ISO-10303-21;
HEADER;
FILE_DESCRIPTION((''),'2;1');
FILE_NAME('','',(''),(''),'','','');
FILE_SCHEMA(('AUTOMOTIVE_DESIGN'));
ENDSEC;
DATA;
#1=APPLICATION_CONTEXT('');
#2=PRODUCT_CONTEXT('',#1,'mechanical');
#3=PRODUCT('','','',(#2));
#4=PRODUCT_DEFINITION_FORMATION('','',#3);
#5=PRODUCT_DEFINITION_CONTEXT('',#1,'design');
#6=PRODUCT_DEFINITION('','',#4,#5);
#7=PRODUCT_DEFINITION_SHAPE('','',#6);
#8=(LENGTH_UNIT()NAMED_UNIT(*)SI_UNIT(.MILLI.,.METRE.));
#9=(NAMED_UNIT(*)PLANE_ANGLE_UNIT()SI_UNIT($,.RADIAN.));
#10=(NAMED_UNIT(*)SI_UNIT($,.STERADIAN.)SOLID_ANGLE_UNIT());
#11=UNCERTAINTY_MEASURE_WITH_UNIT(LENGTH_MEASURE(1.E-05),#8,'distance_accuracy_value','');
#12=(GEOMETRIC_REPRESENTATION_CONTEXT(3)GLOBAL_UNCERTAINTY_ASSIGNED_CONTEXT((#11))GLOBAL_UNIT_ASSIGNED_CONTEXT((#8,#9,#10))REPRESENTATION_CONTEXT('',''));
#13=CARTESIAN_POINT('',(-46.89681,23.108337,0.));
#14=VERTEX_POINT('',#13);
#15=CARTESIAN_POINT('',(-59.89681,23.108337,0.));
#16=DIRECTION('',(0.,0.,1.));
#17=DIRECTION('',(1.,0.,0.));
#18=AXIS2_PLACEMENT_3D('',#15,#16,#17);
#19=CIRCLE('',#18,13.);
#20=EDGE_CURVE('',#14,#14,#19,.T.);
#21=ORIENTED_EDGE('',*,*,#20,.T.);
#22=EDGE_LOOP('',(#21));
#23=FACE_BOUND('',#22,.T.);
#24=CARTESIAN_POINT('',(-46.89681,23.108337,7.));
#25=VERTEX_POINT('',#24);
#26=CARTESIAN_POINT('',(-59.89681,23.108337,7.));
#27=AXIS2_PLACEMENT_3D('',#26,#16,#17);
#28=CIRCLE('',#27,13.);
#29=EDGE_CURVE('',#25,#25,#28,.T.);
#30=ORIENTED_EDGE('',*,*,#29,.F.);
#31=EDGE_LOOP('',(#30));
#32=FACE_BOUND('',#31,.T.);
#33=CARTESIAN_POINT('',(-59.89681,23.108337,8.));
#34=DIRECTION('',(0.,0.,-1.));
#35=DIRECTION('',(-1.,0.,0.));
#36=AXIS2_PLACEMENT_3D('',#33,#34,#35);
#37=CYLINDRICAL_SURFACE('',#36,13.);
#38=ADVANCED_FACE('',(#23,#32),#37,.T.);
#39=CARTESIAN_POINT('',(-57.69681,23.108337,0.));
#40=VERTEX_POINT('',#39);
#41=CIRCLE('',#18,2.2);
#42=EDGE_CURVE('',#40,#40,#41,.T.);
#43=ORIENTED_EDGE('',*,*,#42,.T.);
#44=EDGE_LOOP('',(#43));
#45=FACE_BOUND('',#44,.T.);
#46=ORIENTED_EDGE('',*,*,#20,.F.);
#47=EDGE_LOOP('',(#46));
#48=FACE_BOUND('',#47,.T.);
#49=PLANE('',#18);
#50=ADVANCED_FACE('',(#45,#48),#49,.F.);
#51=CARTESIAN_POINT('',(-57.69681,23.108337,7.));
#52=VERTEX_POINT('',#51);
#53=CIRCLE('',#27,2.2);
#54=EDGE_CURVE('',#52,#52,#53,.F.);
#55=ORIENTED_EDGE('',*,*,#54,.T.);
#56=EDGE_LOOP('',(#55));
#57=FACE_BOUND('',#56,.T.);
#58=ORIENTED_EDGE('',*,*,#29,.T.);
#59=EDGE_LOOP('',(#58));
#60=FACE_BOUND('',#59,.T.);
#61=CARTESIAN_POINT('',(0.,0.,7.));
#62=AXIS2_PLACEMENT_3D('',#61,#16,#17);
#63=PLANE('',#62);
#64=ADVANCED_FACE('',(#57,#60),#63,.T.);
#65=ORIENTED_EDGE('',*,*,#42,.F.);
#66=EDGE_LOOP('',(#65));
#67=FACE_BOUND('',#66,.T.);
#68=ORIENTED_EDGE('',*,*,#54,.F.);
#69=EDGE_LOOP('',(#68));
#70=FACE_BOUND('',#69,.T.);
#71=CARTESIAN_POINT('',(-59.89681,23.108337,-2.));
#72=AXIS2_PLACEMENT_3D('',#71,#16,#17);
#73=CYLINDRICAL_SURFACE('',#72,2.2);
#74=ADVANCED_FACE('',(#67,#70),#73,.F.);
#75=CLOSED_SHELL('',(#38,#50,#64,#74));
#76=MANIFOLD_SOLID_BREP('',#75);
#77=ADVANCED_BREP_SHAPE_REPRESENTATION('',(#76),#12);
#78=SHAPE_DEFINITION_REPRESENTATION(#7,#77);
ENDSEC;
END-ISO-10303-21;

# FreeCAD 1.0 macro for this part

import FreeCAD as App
import Part
import Sketcher
Q = App.Units.Quantity

doc = App.newDocument("Part")
body = doc.addObject("PartDesign::Body", "Body")

sketch1 = body.newObject("Sketcher::SketchObject", "Sketch")
sketch1.AttachmentSupport = (doc.getObject("XY_Plane"), [""])
sketch1.MapMode = "FlatFace"
sketch1.addGeometry([
    Part.Circle(App.Vector(-59.9, 23.1, 0), App.Vector(0, 0, 1), 13),
    Part.Circle(App.Vector(-59.9, 23.1, 0), App.Vector(0, 0, 1), 1.5),
], False)
sketch1.addConstraint([
    Sketcher.Constraint("Coincident", 1, 3, 0, 3),
    Sketcher.Constraint("Diameter", 0, Q("26 mm")),
    Sketcher.Constraint("Diameter", 1, Q("3 mm")),
    Sketcher.Constraint("DistanceX", 0, 3, -1, 1, Q("59.89681 mm")),
    Sketcher.Constraint("DistanceY", -1, 1, 0, 3, Q("23.108337 mm")),
])
pad1 = body.newObject("PartDesign::Pad", "Pad")
pad1.Profile = sketch1
pad1.Length = 8

sketch2 = body.newObject("Sketcher::SketchObject", "Sketch001")
sketch2.AttachmentSupport = (doc.getObject("XY_Plane"), [""])
sketch2.MapMode = "FlatFace"
sketch2.AttachmentOffset = App.Placement(App.Vector(0, 0, 8), App.Rotation())
sketch2.addGeometry(Part.Circle(App.Vector(-59.9, 23.1, 0), App.Vector(0, 0, 1), 2.2), False)
sketch2.addConstraint([
    Sketcher.Constraint("Diameter", 0, Q("4.4 mm")),
    Sketcher.Constraint("DistanceX", 0, 3, -1, 1, Q("59.89681 mm")),
    Sketcher.Constraint("DistanceY", -1, 1, 0, 3, Q("23.108337 mm")),
])
pocket1 = body.newObject("PartDesign::Pocket", "Pocket")
pocket1.Profile = sketch2
pocket1.Length = 10

sketch3 = body.newObject("Sketcher::SketchObject", "Sketch002")
sketch3.AttachmentSupport = (doc.getObject("XY_Plane"), [""])
sketch3.MapMode = "FlatFace"
sketch3.AttachmentOffset = App.Placement(App.Vector(0, 0, 8), App.Rotation())
sketch3.addGeometry([
    Part.LineSegment(App.Vector(-53, 38, 0), App.Vector(-73, 36, 0)),
    Part.LineSegment(App.Vector(-73, 36, 0), App.Vector(-73, 10, 0)),
    Part.LineSegment(App.Vector(-73, 10, 0), App.Vector(-47, 10, 0)),
    Part.LineSegment(App.Vector(-47, 10, 0), App.Vector(-47, 36, 0)),
    Part.LineSegment(App.Vector(-47, 36, 0), App.Vector(-53, 38, 0)),
], False)
sketch3.addConstraint([
    Sketcher.Constraint("Coincident", 0, 2, 1, 1),
    Sketcher.Constraint("Coincident", 1, 2, 2, 1),
    Sketcher.Constraint("Coincident", 2, 2, 3, 1),
    Sketcher.Constraint("Coincident", 3, 2, 4, 1),
    Sketcher.Constraint("Coincident", 4, 2, 0, 1),
    Sketcher.Constraint("Vertical", 1),
    Sketcher.Constraint("Horizontal", 2),
    Sketcher.Constraint("Vertical", 3),
    Sketcher.Constraint("Horizontal", 0, 2, 3, 2),
    Sketcher.Constraint("Distance", 0, Q("20.03845 mm")),
    Sketcher.Constraint("DistanceX", 2, 1, 2, 2, Q("26.807326 mm")),
    Sketcher.Constraint("DistanceY", 1, 2, 1, 1, Q("26.410915 mm")),
    Sketcher.Constraint("DistanceX", 0, 2, -1, 1, Q("73.325249 mm")),
    Sketcher.Constraint("DistanceY", -1, 1, 0, 2, Q("36.16514 mm")),
    Sketcher.Constraint("DistanceX", 4, 2, -1, 1, Q("53.384392 mm")),
])
pocket2 = body.newObject("PartDesign::Pocket", "Pocket001")
pocket2.Profile = sketch3
pocket2.Length = 1

doc.recompute()
